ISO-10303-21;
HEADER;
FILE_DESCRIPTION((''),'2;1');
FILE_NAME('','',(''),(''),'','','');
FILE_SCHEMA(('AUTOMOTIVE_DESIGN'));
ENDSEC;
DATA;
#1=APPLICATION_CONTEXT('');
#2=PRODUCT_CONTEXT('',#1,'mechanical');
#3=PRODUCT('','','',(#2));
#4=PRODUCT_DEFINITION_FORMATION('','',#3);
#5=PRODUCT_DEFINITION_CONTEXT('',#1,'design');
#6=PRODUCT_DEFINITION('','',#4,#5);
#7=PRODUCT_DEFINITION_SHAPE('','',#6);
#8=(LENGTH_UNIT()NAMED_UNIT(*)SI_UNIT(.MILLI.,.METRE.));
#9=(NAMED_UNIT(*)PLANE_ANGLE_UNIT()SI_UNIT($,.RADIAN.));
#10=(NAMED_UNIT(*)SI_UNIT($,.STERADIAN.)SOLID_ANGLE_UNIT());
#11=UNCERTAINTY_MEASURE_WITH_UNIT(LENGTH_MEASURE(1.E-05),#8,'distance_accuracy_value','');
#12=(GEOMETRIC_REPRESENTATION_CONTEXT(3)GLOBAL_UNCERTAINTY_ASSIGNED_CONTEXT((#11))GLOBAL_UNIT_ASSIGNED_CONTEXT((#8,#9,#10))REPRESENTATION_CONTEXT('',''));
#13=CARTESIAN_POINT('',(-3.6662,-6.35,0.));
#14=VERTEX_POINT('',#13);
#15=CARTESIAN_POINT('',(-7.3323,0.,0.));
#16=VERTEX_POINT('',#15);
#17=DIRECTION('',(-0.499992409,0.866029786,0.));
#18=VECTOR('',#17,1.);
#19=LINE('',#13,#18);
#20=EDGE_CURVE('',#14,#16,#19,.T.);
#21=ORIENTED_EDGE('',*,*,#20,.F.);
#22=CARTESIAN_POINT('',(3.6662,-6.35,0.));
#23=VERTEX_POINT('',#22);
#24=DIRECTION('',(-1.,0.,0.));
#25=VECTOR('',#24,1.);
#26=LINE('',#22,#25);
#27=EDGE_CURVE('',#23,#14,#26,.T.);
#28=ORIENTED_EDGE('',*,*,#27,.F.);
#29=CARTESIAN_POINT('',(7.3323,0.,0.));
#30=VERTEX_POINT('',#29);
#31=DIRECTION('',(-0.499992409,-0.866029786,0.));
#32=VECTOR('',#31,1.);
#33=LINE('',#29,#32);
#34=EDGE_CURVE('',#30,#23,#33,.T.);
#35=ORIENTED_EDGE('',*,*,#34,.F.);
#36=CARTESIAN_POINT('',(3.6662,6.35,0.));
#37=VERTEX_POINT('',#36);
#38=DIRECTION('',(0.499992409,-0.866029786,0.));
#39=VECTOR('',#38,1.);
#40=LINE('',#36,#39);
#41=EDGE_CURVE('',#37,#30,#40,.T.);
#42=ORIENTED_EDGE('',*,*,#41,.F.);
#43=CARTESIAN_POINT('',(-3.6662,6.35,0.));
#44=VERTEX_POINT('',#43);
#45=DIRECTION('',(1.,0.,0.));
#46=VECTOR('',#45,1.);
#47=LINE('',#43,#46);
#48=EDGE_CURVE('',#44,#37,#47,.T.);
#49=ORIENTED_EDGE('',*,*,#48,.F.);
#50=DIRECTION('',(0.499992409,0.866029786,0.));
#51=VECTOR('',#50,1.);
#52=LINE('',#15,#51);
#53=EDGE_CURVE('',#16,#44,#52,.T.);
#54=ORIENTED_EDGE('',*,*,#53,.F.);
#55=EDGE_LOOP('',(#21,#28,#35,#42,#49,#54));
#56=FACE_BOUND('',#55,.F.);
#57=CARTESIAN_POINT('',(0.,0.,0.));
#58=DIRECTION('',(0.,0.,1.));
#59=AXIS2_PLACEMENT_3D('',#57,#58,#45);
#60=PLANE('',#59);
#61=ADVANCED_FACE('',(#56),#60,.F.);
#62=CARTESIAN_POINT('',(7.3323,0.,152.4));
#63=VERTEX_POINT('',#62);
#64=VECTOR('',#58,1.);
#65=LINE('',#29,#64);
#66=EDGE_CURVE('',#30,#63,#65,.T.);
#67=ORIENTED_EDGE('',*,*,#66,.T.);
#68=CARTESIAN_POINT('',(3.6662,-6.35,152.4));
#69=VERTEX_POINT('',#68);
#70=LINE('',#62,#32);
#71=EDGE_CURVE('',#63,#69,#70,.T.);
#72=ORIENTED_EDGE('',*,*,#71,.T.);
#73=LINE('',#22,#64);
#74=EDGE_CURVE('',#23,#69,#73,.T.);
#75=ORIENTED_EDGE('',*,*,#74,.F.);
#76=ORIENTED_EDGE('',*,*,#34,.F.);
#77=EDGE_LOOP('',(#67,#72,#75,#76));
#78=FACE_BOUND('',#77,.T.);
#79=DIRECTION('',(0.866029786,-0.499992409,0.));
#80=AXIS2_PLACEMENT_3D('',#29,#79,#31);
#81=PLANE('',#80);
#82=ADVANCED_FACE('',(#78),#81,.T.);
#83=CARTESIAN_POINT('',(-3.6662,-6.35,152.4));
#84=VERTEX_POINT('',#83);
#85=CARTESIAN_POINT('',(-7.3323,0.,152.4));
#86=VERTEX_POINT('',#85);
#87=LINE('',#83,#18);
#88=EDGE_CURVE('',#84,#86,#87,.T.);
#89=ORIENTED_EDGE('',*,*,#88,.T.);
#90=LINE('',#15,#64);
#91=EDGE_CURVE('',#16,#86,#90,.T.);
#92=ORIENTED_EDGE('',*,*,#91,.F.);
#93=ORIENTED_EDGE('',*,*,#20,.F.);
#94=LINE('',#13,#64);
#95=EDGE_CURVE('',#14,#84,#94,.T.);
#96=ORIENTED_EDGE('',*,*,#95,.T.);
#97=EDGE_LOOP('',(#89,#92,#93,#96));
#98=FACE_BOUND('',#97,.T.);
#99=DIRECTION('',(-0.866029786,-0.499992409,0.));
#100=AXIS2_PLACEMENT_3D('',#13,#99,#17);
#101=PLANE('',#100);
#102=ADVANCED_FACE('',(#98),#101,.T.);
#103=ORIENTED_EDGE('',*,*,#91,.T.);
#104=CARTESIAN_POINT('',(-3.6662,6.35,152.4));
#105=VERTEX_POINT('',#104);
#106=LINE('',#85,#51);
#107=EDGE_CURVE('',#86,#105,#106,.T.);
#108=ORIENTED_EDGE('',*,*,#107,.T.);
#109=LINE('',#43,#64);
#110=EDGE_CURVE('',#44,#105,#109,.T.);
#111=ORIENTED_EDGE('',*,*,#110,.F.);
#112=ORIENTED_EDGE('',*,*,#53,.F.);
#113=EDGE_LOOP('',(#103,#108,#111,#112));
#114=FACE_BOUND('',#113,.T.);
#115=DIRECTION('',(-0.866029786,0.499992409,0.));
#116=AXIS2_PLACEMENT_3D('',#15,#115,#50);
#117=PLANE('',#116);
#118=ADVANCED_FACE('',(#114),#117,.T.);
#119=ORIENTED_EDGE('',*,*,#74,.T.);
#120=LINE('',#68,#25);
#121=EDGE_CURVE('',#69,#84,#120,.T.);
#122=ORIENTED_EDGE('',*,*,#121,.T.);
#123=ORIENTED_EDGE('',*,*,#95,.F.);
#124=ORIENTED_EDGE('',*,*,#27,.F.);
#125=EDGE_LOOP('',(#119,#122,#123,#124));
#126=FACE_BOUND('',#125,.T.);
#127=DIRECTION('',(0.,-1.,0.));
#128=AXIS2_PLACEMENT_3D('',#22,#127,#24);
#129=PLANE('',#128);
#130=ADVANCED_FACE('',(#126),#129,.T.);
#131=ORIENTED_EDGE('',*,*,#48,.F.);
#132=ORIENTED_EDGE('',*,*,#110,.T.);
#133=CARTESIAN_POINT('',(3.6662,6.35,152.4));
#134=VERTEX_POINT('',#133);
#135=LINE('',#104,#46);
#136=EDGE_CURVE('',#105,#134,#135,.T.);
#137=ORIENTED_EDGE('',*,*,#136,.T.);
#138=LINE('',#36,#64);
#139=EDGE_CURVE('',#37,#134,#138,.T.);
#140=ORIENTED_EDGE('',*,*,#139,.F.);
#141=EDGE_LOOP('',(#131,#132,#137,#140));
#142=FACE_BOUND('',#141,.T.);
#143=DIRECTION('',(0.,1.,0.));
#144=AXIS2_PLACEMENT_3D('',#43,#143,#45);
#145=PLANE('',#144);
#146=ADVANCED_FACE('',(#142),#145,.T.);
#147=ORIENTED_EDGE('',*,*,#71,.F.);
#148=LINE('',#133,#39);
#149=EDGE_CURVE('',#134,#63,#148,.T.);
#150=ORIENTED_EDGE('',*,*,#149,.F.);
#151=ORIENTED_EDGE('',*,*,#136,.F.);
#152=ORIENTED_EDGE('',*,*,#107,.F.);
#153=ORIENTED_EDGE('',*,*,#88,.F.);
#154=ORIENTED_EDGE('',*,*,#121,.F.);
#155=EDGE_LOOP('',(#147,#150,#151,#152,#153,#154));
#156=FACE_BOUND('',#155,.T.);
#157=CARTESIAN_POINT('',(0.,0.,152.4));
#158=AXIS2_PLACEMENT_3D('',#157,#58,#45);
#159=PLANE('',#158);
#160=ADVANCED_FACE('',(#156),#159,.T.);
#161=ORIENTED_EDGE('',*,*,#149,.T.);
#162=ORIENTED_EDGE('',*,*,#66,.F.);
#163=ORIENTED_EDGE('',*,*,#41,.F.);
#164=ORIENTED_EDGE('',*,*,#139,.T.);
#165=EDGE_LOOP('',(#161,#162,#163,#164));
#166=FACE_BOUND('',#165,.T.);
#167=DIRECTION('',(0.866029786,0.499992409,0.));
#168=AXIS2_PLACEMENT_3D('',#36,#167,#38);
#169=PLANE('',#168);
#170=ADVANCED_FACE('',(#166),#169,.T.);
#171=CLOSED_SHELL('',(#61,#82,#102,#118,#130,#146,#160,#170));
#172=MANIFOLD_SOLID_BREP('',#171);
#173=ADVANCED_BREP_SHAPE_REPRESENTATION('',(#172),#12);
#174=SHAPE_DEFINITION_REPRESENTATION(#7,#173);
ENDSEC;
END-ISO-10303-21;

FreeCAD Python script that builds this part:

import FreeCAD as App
import Part
import Sketcher
from FreeCAD import Vector
Q = App.Units.Quantity

doc = App.newDocument("Part")
body = doc.addObject("PartDesign::Body", "Body")

sketch1 = body.newObject("Sketcher::SketchObject", "Sketch")
sketch1.AttachmentSupport = (doc.getObject("XY_Plane"), [""])
sketch1.MapMode = "FlatFace"
sketch1.addGeometry(Part.LineSegment(Vector(7, 0, 0), Vector(4, 6, 0)), False)
sketch1.addGeometry(Part.LineSegment(Vector(4, 6, 0), Vector(-4, 6, 0)), False)
sketch1.addGeometry(Part.LineSegment(Vector(-4, 6, 0), Vector(-7, 0, 0)), False)
sketch1.addGeometry(Part.LineSegment(Vector(-7, 0, 0), Vector(-4, -6, 0)), False)
sketch1.addGeometry(Part.LineSegment(Vector(-4, -6, 0), Vector(4, -6, 0)), False)
sketch1.addGeometry(Part.LineSegment(Vector(4, -6, 0), Vector(7, 0, 0)), False)
sketch1.addConstraint(Sketcher.Constraint("Coincident", 0, 2, 1, 1))
sketch1.addConstraint(Sketcher.Constraint("Coincident", 1, 2, 2, 1))
sketch1.addConstraint(Sketcher.Constraint("Coincident", 2, 2, 3, 1))
sketch1.addConstraint(Sketcher.Constraint("Coincident", 3, 2, 4, 1))
sketch1.addConstraint(Sketcher.Constraint("Coincident", 4, 2, 5, 1))
sketch1.addConstraint(Sketcher.Constraint("Coincident", 5, 2, 0, 1))
sketch1.addConstraint(Sketcher.Constraint("Horizontal", 1))
sketch1.addConstraint(Sketcher.Constraint("Horizontal", 4))
sketch1.addConstraint(Sketcher.Constraint("Symmetric", 0, 2, 3, 2, -1, 1))
sketch1.addConstraint(Sketcher.Constraint("Symmetric", 2, 2, 5, 2, -1, 1))
sketch1.addConstraint(Sketcher.Constraint("PointOnObject", 2, 2, -1))
sketch1.addConstraint(Sketcher.Constraint("Parallel", 2, 5))
sketch1.addConstraint(Sketcher.Constraint("Vertical", 1, 2, 3, 2))
sketch1.addConstraint(Sketcher.Constraint("DistanceY", 3, 2, 1, 2, Q("0.5 in")))
sketch1.addConstraint(Sketcher.Constraint("Angle", 0, Q("119.9995 deg")))
sketch1.addConstraint(Sketcher.Constraint("DistanceX", 2, 2, 0, 2, Q("0.433 in")))
pad1 = body.newObject("PartDesign::Pad", "Pad")
pad1.Profile = sketch1
pad1.Length = Q("6 in")

doc.recompute()
